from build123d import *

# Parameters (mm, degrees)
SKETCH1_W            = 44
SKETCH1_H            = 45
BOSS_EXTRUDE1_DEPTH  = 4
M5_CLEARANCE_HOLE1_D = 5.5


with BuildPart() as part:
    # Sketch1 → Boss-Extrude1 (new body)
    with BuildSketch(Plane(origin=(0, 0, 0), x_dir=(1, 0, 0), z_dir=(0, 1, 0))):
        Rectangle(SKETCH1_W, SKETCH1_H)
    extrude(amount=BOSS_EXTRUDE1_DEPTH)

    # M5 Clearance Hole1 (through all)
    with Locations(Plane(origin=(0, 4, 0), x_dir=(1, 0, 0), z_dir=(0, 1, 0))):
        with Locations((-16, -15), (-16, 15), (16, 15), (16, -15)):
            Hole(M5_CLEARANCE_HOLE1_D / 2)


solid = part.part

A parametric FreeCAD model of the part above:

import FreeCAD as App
import Part
import Sketcher
from FreeCAD import Vector
Q = App.Units.Quantity


def add_polygon(sketch, points):
    """Adds a closed chain of lines whose ends are joined by coincident constraints."""
    first, n = sketch.GeometryCount, len(points)
    for a, b in zip(points, points[1:] + points[:1]):
        sketch.addGeometry(Part.LineSegment(App.Vector(*a, 0), App.Vector(*b, 0)), False)
    for i in range(n):
        sketch.addConstraint(Sketcher.Constraint("Coincident", first + i, 2, first + (i + 1) % n, 1))

doc = App.newDocument("Part")
body = doc.addObject("PartDesign::Body", "Body")

sketch1 = body.newObject("Sketcher::SketchObject", "Sketch")
sketch1.AttachmentSupport = (doc.getObject("XZ_Plane"), [""])
sketch1.MapMode = "FlatFace"
add_polygon(sketch1, [(-22, -22), (-22, 22), (22, 22), (22, -22)])
sketch1.addConstraint([
    Sketcher.Constraint("Vertical", 0),
    Sketcher.Constraint("Horizontal", 1),
    Sketcher.Constraint("Vertical", 2),
    Sketcher.Constraint("Horizontal", 3),
    Sketcher.Constraint("Symmetric", 0, 2, 2, 2, -1, 1),
    Sketcher.Constraint("DistanceX", 1, 1, 1, 2, Q("44 mm")),
    Sketcher.Constraint("DistanceY", 0, 1, 0, 2, Q("45 mm")),
])
pad1 = body.newObject("PartDesign::Pad", "Pad")
pad1.Profile = sketch1
pad1.Length = 4
pad1.Reversed = True

sketch2 = body.newObject("Sketcher::SketchObject", "Sketch001")
sketch2.AttachmentSupport = (doc.getObject("XZ_Plane"), [""])
sketch2.MapMode = "FlatFace"
sketch2.AttachmentOffset = App.Placement(Vector(0, 0, -4), App.Rotation())
sketch2.addGeometry([
    Part.Circle(Vector(-16, 15, 0), Vector(0, 0, 1), 2.8),
    Part.Circle(Vector(-16, -15, 0), Vector(0, 0, 1), 2.8),
    Part.Circle(Vector(16, -15, 0), Vector(0, 0, 1), 2.8),
    Part.Circle(Vector(16, 15, 0), Vector(0, 0, 1), 2.8),
], False)
sketch2.addConstraint([
    Sketcher.Constraint("Equal", 0, 1),
    Sketcher.Constraint("Equal", 1, 2),
    Sketcher.Constraint("Equal", 2, 3),
    Sketcher.Constraint("Symmetric", 0, 3, 2, 3, -1, 1),
    Sketcher.Constraint("Symmetric", 1, 3, 3, 3, -1, 1),
    Sketcher.Constraint("Symmetric", 1, 3, 2, 3, -2),
    Sketcher.Constraint("Diameter", 0, Q("5.5 mm")),
    Sketcher.Constraint("DistanceX", 0, 3, -1, 1, Q("16 mm")),
    Sketcher.Constraint("DistanceY", -1, 1, 0, 3, Q("15 mm")),
])
doc.recompute()
hole = body.newObject("PartDesign::Hole", "Hole")
hole.Profile = sketch2
hole.ThreadType = "None"
hole.Diameter = 5.5
hole.DepthType = "ThroughAll"
hole.Reversed = True

doc.recompute()
